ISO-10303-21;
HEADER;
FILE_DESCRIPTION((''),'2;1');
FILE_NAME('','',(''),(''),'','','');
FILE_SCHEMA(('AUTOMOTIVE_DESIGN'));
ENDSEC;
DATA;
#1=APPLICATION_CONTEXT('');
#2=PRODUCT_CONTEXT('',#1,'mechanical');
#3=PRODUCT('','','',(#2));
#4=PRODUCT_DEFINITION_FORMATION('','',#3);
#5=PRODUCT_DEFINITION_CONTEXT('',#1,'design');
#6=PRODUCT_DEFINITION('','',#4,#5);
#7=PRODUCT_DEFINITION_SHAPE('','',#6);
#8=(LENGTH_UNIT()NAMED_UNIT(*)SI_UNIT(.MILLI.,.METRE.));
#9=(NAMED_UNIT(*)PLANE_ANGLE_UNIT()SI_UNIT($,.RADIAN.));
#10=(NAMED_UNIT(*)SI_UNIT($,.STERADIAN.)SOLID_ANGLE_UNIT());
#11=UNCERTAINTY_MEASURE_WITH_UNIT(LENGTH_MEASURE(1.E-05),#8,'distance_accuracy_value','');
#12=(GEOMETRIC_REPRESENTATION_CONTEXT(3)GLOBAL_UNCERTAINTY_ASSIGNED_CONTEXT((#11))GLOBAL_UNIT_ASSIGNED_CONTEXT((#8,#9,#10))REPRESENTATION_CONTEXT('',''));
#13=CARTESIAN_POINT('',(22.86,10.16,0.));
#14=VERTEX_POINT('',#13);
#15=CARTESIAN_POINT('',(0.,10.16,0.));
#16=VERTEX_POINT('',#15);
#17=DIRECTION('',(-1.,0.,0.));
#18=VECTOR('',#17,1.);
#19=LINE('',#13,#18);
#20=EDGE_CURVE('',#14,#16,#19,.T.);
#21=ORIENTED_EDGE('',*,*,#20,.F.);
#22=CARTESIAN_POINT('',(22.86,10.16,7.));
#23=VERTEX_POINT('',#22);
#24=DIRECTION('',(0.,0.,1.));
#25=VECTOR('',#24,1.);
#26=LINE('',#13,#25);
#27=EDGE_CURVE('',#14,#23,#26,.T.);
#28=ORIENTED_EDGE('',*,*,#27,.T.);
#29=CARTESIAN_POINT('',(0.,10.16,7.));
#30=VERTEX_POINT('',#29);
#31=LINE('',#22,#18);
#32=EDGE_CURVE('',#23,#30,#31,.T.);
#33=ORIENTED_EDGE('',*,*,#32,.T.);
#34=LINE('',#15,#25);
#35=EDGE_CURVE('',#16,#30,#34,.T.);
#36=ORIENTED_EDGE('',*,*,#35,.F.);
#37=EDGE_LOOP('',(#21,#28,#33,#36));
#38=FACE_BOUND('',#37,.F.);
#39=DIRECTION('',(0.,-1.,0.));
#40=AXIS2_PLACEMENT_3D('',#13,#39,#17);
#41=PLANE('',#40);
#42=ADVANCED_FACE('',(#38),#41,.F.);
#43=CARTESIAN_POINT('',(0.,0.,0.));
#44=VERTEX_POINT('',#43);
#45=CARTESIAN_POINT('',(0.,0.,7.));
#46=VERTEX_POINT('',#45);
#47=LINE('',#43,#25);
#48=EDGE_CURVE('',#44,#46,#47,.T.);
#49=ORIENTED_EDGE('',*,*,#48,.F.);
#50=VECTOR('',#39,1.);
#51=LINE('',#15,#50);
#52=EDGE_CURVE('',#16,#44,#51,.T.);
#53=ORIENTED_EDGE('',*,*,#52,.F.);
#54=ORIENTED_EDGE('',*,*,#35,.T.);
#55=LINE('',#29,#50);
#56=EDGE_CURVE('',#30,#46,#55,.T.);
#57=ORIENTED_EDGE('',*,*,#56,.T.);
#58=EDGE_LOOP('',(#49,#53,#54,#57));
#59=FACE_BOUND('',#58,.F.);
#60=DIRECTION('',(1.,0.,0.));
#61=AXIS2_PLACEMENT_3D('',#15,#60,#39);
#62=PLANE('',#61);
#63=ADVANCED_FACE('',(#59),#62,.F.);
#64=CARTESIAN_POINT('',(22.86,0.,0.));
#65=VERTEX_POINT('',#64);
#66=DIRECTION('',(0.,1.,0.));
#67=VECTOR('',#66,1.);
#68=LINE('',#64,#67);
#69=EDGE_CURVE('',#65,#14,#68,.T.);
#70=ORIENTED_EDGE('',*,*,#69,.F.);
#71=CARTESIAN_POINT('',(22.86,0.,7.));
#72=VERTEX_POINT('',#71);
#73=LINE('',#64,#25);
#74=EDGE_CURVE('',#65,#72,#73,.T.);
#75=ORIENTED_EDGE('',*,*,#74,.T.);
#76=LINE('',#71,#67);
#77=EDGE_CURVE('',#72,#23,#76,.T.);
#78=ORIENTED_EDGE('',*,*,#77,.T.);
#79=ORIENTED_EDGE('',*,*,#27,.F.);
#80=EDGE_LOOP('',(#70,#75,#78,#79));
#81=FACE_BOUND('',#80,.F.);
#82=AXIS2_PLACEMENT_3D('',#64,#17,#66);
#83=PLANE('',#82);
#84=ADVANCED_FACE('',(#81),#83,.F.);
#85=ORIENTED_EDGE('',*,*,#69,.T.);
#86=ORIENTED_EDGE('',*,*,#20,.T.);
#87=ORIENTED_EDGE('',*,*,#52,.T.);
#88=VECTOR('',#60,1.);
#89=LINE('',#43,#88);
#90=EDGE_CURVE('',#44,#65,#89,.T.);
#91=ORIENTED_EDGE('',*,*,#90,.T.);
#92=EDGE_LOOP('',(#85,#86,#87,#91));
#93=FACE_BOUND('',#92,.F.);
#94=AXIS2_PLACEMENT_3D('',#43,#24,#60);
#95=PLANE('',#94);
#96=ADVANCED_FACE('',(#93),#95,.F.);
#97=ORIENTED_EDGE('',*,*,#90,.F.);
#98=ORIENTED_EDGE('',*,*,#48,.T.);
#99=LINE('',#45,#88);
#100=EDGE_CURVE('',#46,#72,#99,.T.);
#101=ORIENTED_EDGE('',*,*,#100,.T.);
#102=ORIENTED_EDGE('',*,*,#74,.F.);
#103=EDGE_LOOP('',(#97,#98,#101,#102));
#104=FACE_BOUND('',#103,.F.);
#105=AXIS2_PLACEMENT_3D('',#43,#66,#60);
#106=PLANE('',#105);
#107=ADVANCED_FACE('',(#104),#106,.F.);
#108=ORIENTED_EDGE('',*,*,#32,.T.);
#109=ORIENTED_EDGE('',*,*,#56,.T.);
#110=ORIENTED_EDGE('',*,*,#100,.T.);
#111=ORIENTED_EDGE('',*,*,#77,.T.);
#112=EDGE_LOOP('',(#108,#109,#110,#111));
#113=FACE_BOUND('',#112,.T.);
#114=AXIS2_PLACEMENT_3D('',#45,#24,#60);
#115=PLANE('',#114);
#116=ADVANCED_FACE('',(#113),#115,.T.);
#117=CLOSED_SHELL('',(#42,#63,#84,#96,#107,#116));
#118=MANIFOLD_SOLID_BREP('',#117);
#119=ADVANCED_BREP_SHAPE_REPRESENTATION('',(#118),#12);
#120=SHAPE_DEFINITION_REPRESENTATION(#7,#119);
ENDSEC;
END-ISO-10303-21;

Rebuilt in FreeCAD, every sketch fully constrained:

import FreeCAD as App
import Part
import Sketcher

V = App.Vector
Q = App.Units.Quantity


def add_polygon(sketch, points):
    """Adds a closed chain of lines whose ends are joined by coincident constraints."""
    first, n = sketch.GeometryCount, len(points)
    for a, b in zip(points, points[1:] + points[:1]):
        sketch.addGeometry(Part.LineSegment(App.Vector(*a, 0), App.Vector(*b, 0)), False)
    for i in range(n):
        sketch.addConstraint(Sketcher.Constraint("Coincident", first + i, 2, first + (i + 1) % n, 1))

doc = App.newDocument("Part")
params = doc.addObject("Spreadsheet::Sheet", "Params")
for row, (alias, value) in enumerate([
    ("sketch1_width", "0.9 in"),
    ("sketch1_height", "0.4 in"),
    ("pad1_length", "0.2755906 in"),
], start=1):
    params.set(f"A{row}", alias)
    params.set(f"B{row}", "=" + value)
    params.setAlias(f"B{row}", alias)

body = doc.addObject("PartDesign::Body", "Body")

sketch1 = body.newObject("Sketcher::SketchObject", "Sketch")
sketch1.AttachmentSupport = (doc.getObject("XY_Plane"), [""])
sketch1.MapMode = "FlatFace"
add_polygon(sketch1, [(0, 10), (0, 0), (23, 0), (23, 10)])
sketch1.addConstraint(Sketcher.Constraint("Vertical", 0))
sketch1.addConstraint(Sketcher.Constraint("Horizontal", 1))
sketch1.addConstraint(Sketcher.Constraint("Vertical", 2))
sketch1.addConstraint(Sketcher.Constraint("Horizontal", 3))
sketch1.addConstraint(Sketcher.Constraint("Coincident", 0, 2, -1, 1))
sketch1.addConstraint(Sketcher.Constraint("DistanceX", 1, 1, 1, 2, Q("0.9 in")))
sketch1.addConstraint(Sketcher.Constraint("DistanceY", 0, 2, 0, 1, Q("0.4 in")))
sketch1.setExpression("Constraints[9]", "Params.sketch1_width")
sketch1.setExpression("Constraints[10]", "Params.sketch1_height")
pad1 = body.newObject("PartDesign::Pad", "Pad")
pad1.Profile = sketch1
pad1.setExpression("Length", "Params.pad1_length")

doc.recompute()
